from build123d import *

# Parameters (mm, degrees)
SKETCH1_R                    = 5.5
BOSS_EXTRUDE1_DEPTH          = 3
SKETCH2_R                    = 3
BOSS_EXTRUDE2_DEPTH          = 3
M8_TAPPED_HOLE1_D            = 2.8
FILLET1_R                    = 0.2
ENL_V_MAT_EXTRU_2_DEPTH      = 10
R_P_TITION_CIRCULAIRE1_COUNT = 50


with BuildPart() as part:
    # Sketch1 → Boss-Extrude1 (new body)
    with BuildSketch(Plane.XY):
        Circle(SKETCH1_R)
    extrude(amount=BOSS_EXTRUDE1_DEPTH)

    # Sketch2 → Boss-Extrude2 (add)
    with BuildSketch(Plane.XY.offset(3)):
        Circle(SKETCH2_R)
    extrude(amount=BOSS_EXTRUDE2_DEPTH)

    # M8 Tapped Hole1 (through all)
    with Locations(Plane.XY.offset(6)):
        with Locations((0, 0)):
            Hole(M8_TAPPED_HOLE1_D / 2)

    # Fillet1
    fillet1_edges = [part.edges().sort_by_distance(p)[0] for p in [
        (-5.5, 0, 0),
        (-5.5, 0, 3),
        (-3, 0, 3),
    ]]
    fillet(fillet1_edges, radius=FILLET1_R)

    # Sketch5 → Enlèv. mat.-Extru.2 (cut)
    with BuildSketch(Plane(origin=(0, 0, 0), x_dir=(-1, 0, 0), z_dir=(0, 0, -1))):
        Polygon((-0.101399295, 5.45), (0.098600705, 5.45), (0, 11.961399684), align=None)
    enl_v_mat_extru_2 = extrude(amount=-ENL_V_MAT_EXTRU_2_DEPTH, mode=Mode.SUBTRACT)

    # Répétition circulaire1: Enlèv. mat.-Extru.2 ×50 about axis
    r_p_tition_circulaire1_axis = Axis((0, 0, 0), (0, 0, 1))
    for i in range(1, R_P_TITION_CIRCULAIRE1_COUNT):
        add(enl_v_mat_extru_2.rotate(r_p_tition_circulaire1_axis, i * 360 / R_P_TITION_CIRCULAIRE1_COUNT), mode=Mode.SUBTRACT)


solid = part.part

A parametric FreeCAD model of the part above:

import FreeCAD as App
import Part
import Sketcher
from FreeCAD import Vector
Q = App.Units.Quantity


def edges_at(feature, points):
    """Names of the edges that pass closest to the given points."""
    edges = feature.Shape.Edges
    near = lambda p: min(range(len(edges)), key=lambda i: edges[i].distToShape(Part.Vertex(*p))[0])
    return sorted({f"Edge{near(p) + 1}" for p in points})


def add_polygon(sketch, points):
    """Adds a closed chain of lines whose ends are joined by coincident constraints."""
    first, n = sketch.GeometryCount, len(points)
    for a, b in zip(points, points[1:] + points[:1]):
        sketch.addGeometry(Part.LineSegment(App.Vector(*a, 0), App.Vector(*b, 0)), False)
    for i in range(n):
        sketch.addConstraint(Sketcher.Constraint("Coincident", first + i, 2, first + (i + 1) % n, 1))

doc = App.newDocument("Part")
body = doc.addObject("PartDesign::Body", "Body")

# Sketch on XY plane
sketch1 = body.newObject("Sketcher::SketchObject", "Sketch")
sketch1.AttachmentSupport = (doc.getObject("XY_Plane"), [""])
sketch1.MapMode = "FlatFace"
sketch1.addGeometry(Part.Circle(Vector(0, 0, 0), Vector(0, 0, 1), 6), False)
sketch1.addConstraint(Sketcher.Constraint("Coincident", 0, 3, -1, 1))
sketch1.addConstraint(Sketcher.Constraint("Diameter", 0, Q("11 mm")))
pad1 = body.newObject("PartDesign::Pad", "Pad")
pad1.Profile = sketch1
pad1.Length = 3

# Sketch on XY plane
sketch2 = body.newObject("Sketcher::SketchObject", "Sketch001")
sketch2.AttachmentSupport = (doc.getObject("XY_Plane"), [""])
sketch2.MapMode = "FlatFace"
sketch2.AttachmentOffset = App.Placement(Vector(0, 0, 3), App.Rotation())
sketch2.addGeometry(Part.Circle(Vector(0, 0, 0), Vector(0, 0, 1), 3), False)
sketch2.addConstraint(Sketcher.Constraint("Coincident", 0, 3, -1, 1))
sketch2.addConstraint(Sketcher.Constraint("Diameter", 0, Q("6 mm")))
pad2 = body.newObject("PartDesign::Pad", "Pad001")
pad2.Profile = sketch2
pad2.Length = 3

# Sketch on XY plane
sketch3 = body.newObject("Sketcher::SketchObject", "Sketch002")
sketch3.AttachmentSupport = (doc.getObject("XY_Plane"), [""])
sketch3.MapMode = "FlatFace"
sketch3.AttachmentOffset = App.Placement(Vector(0, 0, 6), App.Rotation())
sketch3.addGeometry(Part.Circle(Vector(0, 0, 0), Vector(0, 0, 1), 1.4), False)
sketch3.addConstraint(Sketcher.Constraint("Coincident", 0, 3, -1, 1))
sketch3.addConstraint(Sketcher.Constraint("Diameter", 0, Q("2.8 mm")))
doc.recompute()
hole = body.newObject("PartDesign::Hole", "Hole")
hole.Profile = sketch3
hole.ThreadType = "None"
hole.Diameter = 2.8
hole.DepthType = "ThroughAll"
doc.recompute()

fillet = body.newObject("PartDesign::Fillet", "Fillet")
fillet.Base = (hole, edges_at(hole, [(-5.5, 0, 0), (-5.5, 0, 3), (-3, 0, 3)]))
fillet.Radius = 0.2

# Sketch on XY plane
sketch4 = body.newObject("Sketcher::SketchObject", "Sketch003")
sketch4.AttachmentSupport = (doc.getObject("XY_Plane"), [""])
sketch4.MapMode = "FlatFace"
add_polygon(sketch4, [(0.1, 5.45), (-0.1, 5.45), (0, 11.96)])  # lines 0-2
sketch4.addConstraint(Sketcher.Constraint("Horizontal", 0))
sketch4.addConstraint(Sketcher.Constraint("PointOnObject", 1, 2, -2))
sketch4.addConstraint(Sketcher.Constraint("DistanceX", 0, 2, 0, 1, Q("0.2 mm")))
sketch4.addConstraint(Sketcher.Constraint("DistanceY", -1, 1, 0, 2, Q("5.45 mm")))
sketch4.addConstraint(Sketcher.Constraint("DistanceX", 0, 2, -1, 1, Q("0.098601 mm")))
sketch4.addConstraint(Sketcher.Constraint("DistanceY", -1, 1, 1, 2, Q("11.9614 mm")))
pocket1 = body.newObject("PartDesign::Pocket", "Pocket")
pocket1.Profile = sketch4
pocket1.Length = 10
pocket1.Reversed = True
doc.recompute()

polarpattern = body.newObject("PartDesign::PolarPattern", "PolarPattern")
polarpattern.Originals = [pocket1]
polarpattern.Axis = (doc.getObject("Z_Axis"), [""])
polarpattern.Angle = 360
polarpattern.Occurrences = 50
body.Tip = polarpattern

doc.recompute()
